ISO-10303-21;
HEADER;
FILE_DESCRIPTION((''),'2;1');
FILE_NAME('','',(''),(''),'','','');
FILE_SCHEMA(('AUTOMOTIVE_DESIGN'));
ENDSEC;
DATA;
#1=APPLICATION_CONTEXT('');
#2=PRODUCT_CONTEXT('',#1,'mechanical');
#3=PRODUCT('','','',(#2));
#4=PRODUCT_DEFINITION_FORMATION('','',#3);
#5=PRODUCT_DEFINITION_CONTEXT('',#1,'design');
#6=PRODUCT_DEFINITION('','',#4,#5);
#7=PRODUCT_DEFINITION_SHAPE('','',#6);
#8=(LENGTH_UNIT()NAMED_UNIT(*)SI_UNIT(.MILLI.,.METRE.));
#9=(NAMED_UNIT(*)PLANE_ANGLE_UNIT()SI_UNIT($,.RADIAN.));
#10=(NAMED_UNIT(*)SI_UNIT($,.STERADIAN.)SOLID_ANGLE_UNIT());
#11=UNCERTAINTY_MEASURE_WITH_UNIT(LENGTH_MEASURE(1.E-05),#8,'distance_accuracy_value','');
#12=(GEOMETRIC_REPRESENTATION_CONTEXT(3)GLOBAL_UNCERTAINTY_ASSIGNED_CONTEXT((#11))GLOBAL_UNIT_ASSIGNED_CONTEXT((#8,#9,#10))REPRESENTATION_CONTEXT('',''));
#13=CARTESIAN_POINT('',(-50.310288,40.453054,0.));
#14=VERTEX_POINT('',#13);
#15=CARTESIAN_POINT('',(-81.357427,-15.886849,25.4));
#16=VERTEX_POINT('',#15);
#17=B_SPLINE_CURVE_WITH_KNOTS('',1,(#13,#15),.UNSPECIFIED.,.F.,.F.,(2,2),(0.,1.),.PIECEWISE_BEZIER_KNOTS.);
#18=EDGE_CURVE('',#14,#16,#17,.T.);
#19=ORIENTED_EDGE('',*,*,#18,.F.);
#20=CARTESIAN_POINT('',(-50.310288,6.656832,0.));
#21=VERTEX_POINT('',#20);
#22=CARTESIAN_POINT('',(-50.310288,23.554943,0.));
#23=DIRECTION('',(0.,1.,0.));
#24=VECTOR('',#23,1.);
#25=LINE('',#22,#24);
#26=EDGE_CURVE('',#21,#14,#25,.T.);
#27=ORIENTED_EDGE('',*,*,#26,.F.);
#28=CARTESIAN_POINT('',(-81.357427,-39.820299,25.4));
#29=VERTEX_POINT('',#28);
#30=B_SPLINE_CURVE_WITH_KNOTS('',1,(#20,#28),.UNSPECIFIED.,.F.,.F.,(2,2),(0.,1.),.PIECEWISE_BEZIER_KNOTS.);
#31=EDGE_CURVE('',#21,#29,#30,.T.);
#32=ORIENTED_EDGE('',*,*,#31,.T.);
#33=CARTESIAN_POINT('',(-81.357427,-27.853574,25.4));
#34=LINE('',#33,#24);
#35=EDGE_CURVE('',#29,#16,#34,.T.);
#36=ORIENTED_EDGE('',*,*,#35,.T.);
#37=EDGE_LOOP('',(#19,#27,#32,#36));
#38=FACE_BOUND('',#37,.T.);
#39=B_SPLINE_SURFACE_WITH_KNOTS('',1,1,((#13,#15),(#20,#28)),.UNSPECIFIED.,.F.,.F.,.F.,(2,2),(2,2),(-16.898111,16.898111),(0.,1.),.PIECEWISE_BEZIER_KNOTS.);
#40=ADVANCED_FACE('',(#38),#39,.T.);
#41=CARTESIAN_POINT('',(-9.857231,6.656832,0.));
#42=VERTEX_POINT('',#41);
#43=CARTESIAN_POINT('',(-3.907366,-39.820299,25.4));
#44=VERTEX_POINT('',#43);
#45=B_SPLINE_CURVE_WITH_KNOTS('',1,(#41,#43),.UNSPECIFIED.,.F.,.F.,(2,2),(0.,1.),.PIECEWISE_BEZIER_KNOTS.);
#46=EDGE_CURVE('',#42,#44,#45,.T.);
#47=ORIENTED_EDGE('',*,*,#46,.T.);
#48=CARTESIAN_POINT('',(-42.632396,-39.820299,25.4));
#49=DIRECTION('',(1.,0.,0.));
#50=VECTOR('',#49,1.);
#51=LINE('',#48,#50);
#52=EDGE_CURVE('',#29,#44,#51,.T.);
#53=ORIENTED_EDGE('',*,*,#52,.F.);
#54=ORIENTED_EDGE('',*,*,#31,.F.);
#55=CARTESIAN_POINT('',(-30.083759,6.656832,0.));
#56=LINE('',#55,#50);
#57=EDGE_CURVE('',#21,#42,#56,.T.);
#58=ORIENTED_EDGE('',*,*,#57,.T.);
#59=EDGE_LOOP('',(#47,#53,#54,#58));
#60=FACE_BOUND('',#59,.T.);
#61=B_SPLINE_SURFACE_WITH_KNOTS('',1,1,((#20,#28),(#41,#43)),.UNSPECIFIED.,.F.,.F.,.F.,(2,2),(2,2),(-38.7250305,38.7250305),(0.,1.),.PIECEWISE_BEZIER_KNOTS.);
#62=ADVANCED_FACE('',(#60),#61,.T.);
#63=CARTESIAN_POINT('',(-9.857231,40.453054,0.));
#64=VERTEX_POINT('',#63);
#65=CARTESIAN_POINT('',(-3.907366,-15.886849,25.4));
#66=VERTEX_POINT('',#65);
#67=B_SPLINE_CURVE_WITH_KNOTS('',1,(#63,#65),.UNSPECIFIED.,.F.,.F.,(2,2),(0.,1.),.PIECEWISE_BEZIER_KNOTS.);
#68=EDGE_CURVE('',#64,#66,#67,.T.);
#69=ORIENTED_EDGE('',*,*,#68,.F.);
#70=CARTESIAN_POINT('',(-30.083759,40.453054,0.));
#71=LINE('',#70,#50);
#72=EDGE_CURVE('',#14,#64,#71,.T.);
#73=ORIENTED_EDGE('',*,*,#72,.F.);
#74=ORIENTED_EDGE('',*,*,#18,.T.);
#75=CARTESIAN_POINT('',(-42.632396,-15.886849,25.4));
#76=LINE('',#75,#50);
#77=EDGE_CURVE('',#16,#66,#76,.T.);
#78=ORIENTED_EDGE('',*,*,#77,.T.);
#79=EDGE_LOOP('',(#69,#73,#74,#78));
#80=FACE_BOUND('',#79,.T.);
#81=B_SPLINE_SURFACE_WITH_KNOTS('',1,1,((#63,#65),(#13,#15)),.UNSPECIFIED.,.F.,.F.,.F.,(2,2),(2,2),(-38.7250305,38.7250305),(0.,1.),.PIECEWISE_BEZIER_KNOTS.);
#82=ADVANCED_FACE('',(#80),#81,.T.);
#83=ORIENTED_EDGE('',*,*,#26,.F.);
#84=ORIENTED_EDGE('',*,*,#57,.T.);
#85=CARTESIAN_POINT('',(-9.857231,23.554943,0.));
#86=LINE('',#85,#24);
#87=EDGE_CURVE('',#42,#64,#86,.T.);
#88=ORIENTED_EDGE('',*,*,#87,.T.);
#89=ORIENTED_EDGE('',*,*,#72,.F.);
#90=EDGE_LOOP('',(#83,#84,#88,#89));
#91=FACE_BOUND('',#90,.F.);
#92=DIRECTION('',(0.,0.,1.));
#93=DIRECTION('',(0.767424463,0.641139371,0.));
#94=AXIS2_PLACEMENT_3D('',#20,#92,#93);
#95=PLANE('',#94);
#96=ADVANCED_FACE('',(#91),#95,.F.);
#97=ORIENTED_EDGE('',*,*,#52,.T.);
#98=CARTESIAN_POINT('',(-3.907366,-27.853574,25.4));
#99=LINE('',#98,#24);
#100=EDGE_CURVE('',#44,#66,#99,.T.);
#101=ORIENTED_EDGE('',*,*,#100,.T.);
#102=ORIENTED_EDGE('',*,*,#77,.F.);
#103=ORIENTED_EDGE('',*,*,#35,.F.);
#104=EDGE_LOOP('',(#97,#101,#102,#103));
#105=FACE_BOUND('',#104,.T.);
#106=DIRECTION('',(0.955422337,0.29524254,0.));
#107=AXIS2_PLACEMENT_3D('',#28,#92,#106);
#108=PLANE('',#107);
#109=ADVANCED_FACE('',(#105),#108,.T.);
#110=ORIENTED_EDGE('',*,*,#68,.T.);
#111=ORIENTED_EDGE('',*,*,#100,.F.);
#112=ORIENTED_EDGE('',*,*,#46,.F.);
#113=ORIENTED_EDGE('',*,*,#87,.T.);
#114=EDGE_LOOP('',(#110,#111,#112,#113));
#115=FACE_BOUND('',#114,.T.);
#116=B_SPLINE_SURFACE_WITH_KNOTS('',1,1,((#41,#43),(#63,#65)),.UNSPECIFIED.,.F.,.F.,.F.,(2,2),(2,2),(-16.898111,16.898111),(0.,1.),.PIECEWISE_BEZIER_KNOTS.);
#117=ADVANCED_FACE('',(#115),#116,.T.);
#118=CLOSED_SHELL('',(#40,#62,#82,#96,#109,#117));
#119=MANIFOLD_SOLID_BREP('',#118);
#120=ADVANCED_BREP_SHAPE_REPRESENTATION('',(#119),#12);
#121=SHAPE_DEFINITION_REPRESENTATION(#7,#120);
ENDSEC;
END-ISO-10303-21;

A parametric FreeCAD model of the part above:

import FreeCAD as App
import Part
import Sketcher

V = App.Vector
Q = App.Units.Quantity

doc = App.newDocument("Part")
body = doc.addObject("PartDesign::Body", "Body")

# Sketch on XY plane
sketch1 = doc.addObject("Sketcher::SketchObject", "Sketch")
body.addObject(sketch1)
sketch1.AttachmentSupport = (doc.XY_Plane, [""])
sketch1.MapMode = "FlatFace"
sketch1.addGeometry([
    Part.LineSegment(V(-50, 40, 0), V(-50, 7, 0)),
    Part.LineSegment(V(-50, 7, 0), V(-10, 7, 0)),
    Part.LineSegment(V(-10, 7, 0), V(-10, 40, 0)),
    Part.LineSegment(V(-10, 40, 0), V(-50, 40, 0)),
], False)
sketch1.addConstraint([
    Sketcher.Constraint("Coincident", 0, 2, 1, 1),
    Sketcher.Constraint("Coincident", 1, 2, 2, 1),
    Sketcher.Constraint("Coincident", 2, 2, 3, 1),
    Sketcher.Constraint("Coincident", 3, 2, 0, 1),
    Sketcher.Constraint("Vertical", 0),
    Sketcher.Constraint("Horizontal", 1),
    Sketcher.Constraint("Vertical", 2),
    Sketcher.Constraint("Horizontal", 3),
    Sketcher.Constraint("DistanceX", 1, 1, 1, 2, Q("40.453057 mm")),
    Sketcher.Constraint("DistanceY", 0, 2, 0, 1, Q("33.796222 mm")),
    Sketcher.Constraint("DistanceY", -1, 1, 0, 2, Q("6.656832 mm")),
    Sketcher.Constraint("DistanceX", 1, 2, -1, 1, Q("9.857231 mm")),
])

# Sketch on XY plane
sketch2 = doc.addObject("Sketcher::SketchObject", "Sketch001")
body.addObject(sketch2)
sketch2.AttachmentSupport = (doc.XY_Plane, [""])
sketch2.MapMode = "FlatFace"
sketch2.AttachmentOffset = App.Placement(V(0, 0, 25.4), App.Rotation())
sketch2.addGeometry([
    Part.LineSegment(V(-81, -16, 0), V(-81, -40, 0)),
    Part.LineSegment(V(-81, -40, 0), V(-4, -40, 0)),
    Part.LineSegment(V(-4, -40, 0), V(-4, -16, 0)),
    Part.LineSegment(V(-4, -16, 0), V(-81, -16, 0)),
], False)
sketch2.addConstraint([
    Sketcher.Constraint("Coincident", 0, 2, 1, 1),
    Sketcher.Constraint("Coincident", 1, 2, 2, 1),
    Sketcher.Constraint("Coincident", 2, 2, 3, 1),
    Sketcher.Constraint("Coincident", 3, 2, 0, 1),
    Sketcher.Constraint("Vertical", 0),
    Sketcher.Constraint("Horizontal", 1),
    Sketcher.Constraint("Vertical", 2),
    Sketcher.Constraint("Horizontal", 3),
    Sketcher.Constraint("DistanceX", 1, 1, 1, 2, Q("77.450061 mm")),
    Sketcher.Constraint("DistanceY", 0, 2, 0, 1, Q("23.93345 mm")),
    Sketcher.Constraint("DistanceY", 0, 2, -1, 1, Q("39.820299 mm")),
    Sketcher.Constraint("DistanceX", 0, 2, -1, 1, Q("81.357427 mm")),
])

additiveloft = doc.addObject("PartDesign::AdditiveLoft", "AdditiveLoft")
body.addObject(additiveloft)
additiveloft.Profile = sketch1
additiveloft.Sections = [sketch2]

doc.recompute()
